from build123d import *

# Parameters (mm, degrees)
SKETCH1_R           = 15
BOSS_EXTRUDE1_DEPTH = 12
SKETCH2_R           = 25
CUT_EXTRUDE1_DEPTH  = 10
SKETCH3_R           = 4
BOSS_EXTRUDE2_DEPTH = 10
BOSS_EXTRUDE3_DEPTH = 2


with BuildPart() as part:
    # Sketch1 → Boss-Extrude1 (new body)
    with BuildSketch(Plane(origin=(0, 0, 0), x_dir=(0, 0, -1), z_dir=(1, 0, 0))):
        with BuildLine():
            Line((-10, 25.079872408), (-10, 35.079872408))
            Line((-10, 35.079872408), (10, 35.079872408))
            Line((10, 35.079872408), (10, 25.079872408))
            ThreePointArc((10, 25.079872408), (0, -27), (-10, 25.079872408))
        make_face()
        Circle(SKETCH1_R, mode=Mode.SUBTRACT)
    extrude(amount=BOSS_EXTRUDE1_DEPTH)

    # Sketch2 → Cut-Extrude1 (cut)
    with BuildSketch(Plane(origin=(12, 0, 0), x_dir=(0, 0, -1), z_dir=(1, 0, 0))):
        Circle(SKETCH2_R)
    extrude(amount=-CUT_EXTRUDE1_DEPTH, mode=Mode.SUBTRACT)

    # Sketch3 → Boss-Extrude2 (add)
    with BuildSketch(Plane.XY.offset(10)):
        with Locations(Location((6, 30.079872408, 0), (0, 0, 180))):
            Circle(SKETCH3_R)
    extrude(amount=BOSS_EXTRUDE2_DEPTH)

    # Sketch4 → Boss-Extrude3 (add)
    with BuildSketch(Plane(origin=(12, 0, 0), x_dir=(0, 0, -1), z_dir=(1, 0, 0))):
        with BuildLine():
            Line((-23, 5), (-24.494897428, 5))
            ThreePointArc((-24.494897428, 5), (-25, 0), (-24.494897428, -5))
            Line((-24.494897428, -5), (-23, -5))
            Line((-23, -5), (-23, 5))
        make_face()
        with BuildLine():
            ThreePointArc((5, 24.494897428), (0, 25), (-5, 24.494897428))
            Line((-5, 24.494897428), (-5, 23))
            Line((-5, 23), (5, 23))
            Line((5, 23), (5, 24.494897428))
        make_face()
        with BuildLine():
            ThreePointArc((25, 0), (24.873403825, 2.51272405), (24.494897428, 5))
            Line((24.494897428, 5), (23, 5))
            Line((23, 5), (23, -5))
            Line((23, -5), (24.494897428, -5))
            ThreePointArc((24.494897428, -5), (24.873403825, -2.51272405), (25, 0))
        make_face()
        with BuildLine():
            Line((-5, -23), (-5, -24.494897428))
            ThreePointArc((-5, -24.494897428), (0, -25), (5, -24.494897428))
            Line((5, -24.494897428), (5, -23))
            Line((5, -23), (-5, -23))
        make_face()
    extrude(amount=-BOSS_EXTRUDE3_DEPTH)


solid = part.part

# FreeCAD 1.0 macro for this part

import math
import FreeCAD as App
import Part
import Sketcher

doc = App.newDocument("Part")
body = doc.addObject("PartDesign::Body", "Body")

# Sketch on YZ plane
sketch1 = doc.addObject("Sketcher::SketchObject", "Sketch")
body.addObject(sketch1)
sketch1.AttachmentSupport = (doc.YZ_Plane, [""])
sketch1.MapMode = "FlatFace"
sketch1.addGeometry([
    Part.LineSegment(App.Vector(35, 10, 0), App.Vector(25, 10, 0)),  # 0
    Part.ArcOfCircle(Part.Circle(App.Vector(0, 0, 0), App.Vector(0, 0, 1), 27), math.radians(22), math.radians(338)),  # 1
    Part.LineSegment(App.Vector(25, -10, 0), App.Vector(35, -10, 0)),  # 2
    Part.LineSegment(App.Vector(35, -10, 0), App.Vector(35, 10, 0)),  # 3
    Part.Circle(App.Vector(0, 0, 0), App.Vector(0, 0, 1), 15),  # 4
], False)
sketch1.addConstraint([
    Sketcher.Constraint("Coincident", 0, 2, 1, 1),
    Sketcher.Constraint("Coincident", 1, 2, 2, 1),
    Sketcher.Constraint("Coincident", 2, 2, 3, 1),
    Sketcher.Constraint("Coincident", 3, 2, 0, 1),
    Sketcher.Constraint("Horizontal", 0),
    Sketcher.Constraint("Horizontal", 2),
    Sketcher.Constraint("Vertical", 3),
    Sketcher.Constraint("Coincident", 1, 3, -1, 1),
    Sketcher.Constraint("Coincident", 4, 3, -1, 1),
    Sketcher.Constraint("Vertical", 0, 2, 1, 2),
    Sketcher.Constraint("Diameter", 4, 30.0),
    Sketcher.Constraint("Radius", 1, 27.0),
    Sketcher.Constraint("DistanceX", 0, 2, 0, 1, 10.0),
    Sketcher.Constraint("DistanceY", 3, 1, 3, 2, 20.0),
])
pad1 = doc.addObject("PartDesign::Pad", "Pad")
body.addObject(pad1)
pad1.Profile = sketch1
pad1.Length = 12

# Sketch on YZ plane
sketch2 = doc.addObject("Sketcher::SketchObject", "Sketch001")
body.addObject(sketch2)
sketch2.AttachmentSupport = (doc.YZ_Plane, [""])
sketch2.MapMode = "FlatFace"
sketch2.AttachmentOffset = App.Placement(App.Vector(0, 0, 12), App.Rotation())
sketch2.addGeometry(Part.Circle(App.Vector(0, 0, 0), App.Vector(0, 0, 1), 25), False)
sketch2.addConstraint([
    Sketcher.Constraint("Coincident", 0, 3, -1, 1),
    Sketcher.Constraint("Diameter", 0, 50.0),
])
pocket1 = doc.addObject("PartDesign::Pocket", "Pocket")
body.addObject(pocket1)
pocket1.Profile = sketch2
pocket1.Length = 10

# Sketch on XY plane
sketch3 = doc.addObject("Sketcher::SketchObject", "Sketch002")
body.addObject(sketch3)
sketch3.AttachmentSupport = (doc.XY_Plane, [""])
sketch3.MapMode = "FlatFace"
sketch3.AttachmentOffset = App.Placement(App.Vector(0, 0, 10), App.Rotation())
sketch3.addGeometry(Part.Circle(App.Vector(6, 30.1, 0), App.Vector(0, 0, 1), 4), False)
sketch3.addConstraint([
    Sketcher.Constraint("Diameter", 0, 8.0),
    Sketcher.Constraint("DistanceX", -1, 1, 0, 3, 6.0),
    Sketcher.Constraint("DistanceY", -1, 1, 0, 3, 30.079872),
])
pad2 = doc.addObject("PartDesign::Pad", "Pad001")
body.addObject(pad2)
pad2.Profile = sketch3
pad2.Length = 10

# Sketch on YZ plane
sketch4 = doc.addObject("Sketcher::SketchObject", "Sketch003")
body.addObject(sketch4)
sketch4.AttachmentSupport = (doc.YZ_Plane, [""])
sketch4.MapMode = "FlatFace"
sketch4.AttachmentOffset = App.Placement(App.Vector(0, 0, 12), App.Rotation())
sketch4.addGeometry([
    Part.LineSegment(App.Vector(5, 23, 0), App.Vector(5, 24.5, 0)),  # 0
    Part.ArcOfCircle(Part.Circle(App.Vector(0, 0, 0), App.Vector(0, 0, 1), 25), math.radians(78), math.radians(102)),  # 1
    Part.LineSegment(App.Vector(-5, 24.5, 0), App.Vector(-5, 23, 0)),  # 2
    Part.LineSegment(App.Vector(-5, 23, 0), App.Vector(5, 23, 0)),  # 3
    Part.ArcOfCircle(Part.Circle(App.Vector(0, 0, 0), App.Vector(0, 0, 1), 25), math.radians(-12), math.radians(12)),  # 4
    Part.LineSegment(App.Vector(24.5, 5, 0), App.Vector(23, 5, 0)),  # 5
    Part.LineSegment(App.Vector(23, 5, 0), App.Vector(23, -5, 0)),  # 6
    Part.LineSegment(App.Vector(23, -5, 0), App.Vector(24.5, -5, 0)),  # 7
    Part.ArcOfCircle(Part.Circle(App.Vector(0, 0, 0), App.Vector(0, 0, 1), 25), math.radians(-90), math.radians(-78.46)),  # 8
    Part.LineSegment(App.Vector(5, -24.5, 0), App.Vector(5, -23, 0)),  # 9
    Part.LineSegment(App.Vector(5, -23, 0), App.Vector(-5, -23, 0)),  # 10
    Part.LineSegment(App.Vector(-5, -23, 0), App.Vector(-5, -24.5, 0)),  # 11
    Part.ArcOfCircle(Part.Circle(App.Vector(0, 0, 0), App.Vector(0, 0, 1), 25), math.radians(-101.54), math.radians(-90)),  # 12
    Part.LineSegment(App.Vector(-23, 5, 0), App.Vector(-24.5, 5, 0)),  # 13
    Part.ArcOfCircle(Part.Circle(App.Vector(0, 0, 0), App.Vector(0, 0, 1), 25), math.radians(168), math.radians(192)),  # 14
    Part.LineSegment(App.Vector(-24.5, -5, 0), App.Vector(-23, -5, 0)),  # 15
    Part.LineSegment(App.Vector(-23, -5, 0), App.Vector(-23, 5, 0)),  # 16
], False)
sketch4.addConstraint([
    Sketcher.Constraint("Coincident", 0, 2, 1, 1),
    Sketcher.Constraint("Coincident", 1, 2, 2, 1),
    Sketcher.Constraint("Coincident", 2, 2, 3, 1),
    Sketcher.Constraint("Coincident", 3, 2, 0, 1),
    Sketcher.Constraint("Coincident", 4, 2, 5, 1),
    Sketcher.Constraint("Coincident", 5, 2, 6, 1),
    Sketcher.Constraint("Coincident", 6, 2, 7, 1),
    Sketcher.Constraint("Coincident", 7, 2, 4, 1),
    Sketcher.Constraint("Coincident", 8, 2, 9, 1),
    Sketcher.Constraint("Coincident", 9, 2, 10, 1),
    Sketcher.Constraint("Coincident", 10, 2, 11, 1),
    Sketcher.Constraint("Coincident", 11, 2, 12, 1),
    Sketcher.Constraint("Tangent", 12, 2, 8, 1),
    Sketcher.Constraint("Coincident", 13, 2, 14, 1),
    Sketcher.Constraint("Coincident", 14, 2, 15, 1),
    Sketcher.Constraint("Coincident", 15, 2, 16, 1),
    Sketcher.Constraint("Coincident", 16, 2, 13, 1),
    Sketcher.Constraint("Vertical", 0),
    Sketcher.Constraint("Vertical", 2),
    Sketcher.Constraint("Horizontal", 3),
    Sketcher.Constraint("Horizontal", 5),
    Sketcher.Constraint("Vertical", 6),
    Sketcher.Constraint("Horizontal", 7),
    Sketcher.Constraint("Vertical", 9),
    Sketcher.Constraint("Horizontal", 10),
    Sketcher.Constraint("Vertical", 11),
    Sketcher.Constraint("Horizontal", 13),
    Sketcher.Constraint("Horizontal", 15),
    Sketcher.Constraint("Vertical", 16),
    Sketcher.Constraint("Coincident", 1, 3, -1, 1),
    Sketcher.Constraint("Coincident", 4, 3, -1, 1),
    Sketcher.Constraint("Coincident", 8, 3, -1, 1),
    Sketcher.Constraint("Coincident", 14, 3, -1, 1),
    Sketcher.Constraint("Equal", 1, 4),
    Sketcher.Constraint("Equal", 4, 8),
    Sketcher.Constraint("Equal", 8, 12),
    Sketcher.Constraint("Equal", 12, 14),
    Sketcher.Constraint("Symmetric", 2, 2, 9, 2, -1, 1),
    Sketcher.Constraint("Symmetric", 5, 2, 15, 2, -1, 1),
    Sketcher.Constraint("PointOnObject", 12, 2, -2),
    Sketcher.Constraint("Horizontal", 0, 2, 1, 2),
    Sketcher.Constraint("Horizontal", 8, 2, 11, 2),
    Sketcher.Constraint("Horizontal", 5, 2, 13, 2),
    Sketcher.Constraint("Horizontal", 7, 2, 14, 2),
    Sketcher.Constraint("Equal", 15, 0),
    Sketcher.Constraint("Equal", 10, 6),
    Sketcher.Constraint("Radius", 1, 25.0),
    Sketcher.Constraint("DistanceX", 3, 1, 3, 2, 10.0),
    Sketcher.Constraint("DistanceY", -1, 1, 2, 2, 23.0),
])
pad3 = doc.addObject("PartDesign::Pad", "Pad002")
body.addObject(pad3)
pad3.Profile = sketch4
pad3.Length = 2
pad3.Reversed = True

doc.recompute()
